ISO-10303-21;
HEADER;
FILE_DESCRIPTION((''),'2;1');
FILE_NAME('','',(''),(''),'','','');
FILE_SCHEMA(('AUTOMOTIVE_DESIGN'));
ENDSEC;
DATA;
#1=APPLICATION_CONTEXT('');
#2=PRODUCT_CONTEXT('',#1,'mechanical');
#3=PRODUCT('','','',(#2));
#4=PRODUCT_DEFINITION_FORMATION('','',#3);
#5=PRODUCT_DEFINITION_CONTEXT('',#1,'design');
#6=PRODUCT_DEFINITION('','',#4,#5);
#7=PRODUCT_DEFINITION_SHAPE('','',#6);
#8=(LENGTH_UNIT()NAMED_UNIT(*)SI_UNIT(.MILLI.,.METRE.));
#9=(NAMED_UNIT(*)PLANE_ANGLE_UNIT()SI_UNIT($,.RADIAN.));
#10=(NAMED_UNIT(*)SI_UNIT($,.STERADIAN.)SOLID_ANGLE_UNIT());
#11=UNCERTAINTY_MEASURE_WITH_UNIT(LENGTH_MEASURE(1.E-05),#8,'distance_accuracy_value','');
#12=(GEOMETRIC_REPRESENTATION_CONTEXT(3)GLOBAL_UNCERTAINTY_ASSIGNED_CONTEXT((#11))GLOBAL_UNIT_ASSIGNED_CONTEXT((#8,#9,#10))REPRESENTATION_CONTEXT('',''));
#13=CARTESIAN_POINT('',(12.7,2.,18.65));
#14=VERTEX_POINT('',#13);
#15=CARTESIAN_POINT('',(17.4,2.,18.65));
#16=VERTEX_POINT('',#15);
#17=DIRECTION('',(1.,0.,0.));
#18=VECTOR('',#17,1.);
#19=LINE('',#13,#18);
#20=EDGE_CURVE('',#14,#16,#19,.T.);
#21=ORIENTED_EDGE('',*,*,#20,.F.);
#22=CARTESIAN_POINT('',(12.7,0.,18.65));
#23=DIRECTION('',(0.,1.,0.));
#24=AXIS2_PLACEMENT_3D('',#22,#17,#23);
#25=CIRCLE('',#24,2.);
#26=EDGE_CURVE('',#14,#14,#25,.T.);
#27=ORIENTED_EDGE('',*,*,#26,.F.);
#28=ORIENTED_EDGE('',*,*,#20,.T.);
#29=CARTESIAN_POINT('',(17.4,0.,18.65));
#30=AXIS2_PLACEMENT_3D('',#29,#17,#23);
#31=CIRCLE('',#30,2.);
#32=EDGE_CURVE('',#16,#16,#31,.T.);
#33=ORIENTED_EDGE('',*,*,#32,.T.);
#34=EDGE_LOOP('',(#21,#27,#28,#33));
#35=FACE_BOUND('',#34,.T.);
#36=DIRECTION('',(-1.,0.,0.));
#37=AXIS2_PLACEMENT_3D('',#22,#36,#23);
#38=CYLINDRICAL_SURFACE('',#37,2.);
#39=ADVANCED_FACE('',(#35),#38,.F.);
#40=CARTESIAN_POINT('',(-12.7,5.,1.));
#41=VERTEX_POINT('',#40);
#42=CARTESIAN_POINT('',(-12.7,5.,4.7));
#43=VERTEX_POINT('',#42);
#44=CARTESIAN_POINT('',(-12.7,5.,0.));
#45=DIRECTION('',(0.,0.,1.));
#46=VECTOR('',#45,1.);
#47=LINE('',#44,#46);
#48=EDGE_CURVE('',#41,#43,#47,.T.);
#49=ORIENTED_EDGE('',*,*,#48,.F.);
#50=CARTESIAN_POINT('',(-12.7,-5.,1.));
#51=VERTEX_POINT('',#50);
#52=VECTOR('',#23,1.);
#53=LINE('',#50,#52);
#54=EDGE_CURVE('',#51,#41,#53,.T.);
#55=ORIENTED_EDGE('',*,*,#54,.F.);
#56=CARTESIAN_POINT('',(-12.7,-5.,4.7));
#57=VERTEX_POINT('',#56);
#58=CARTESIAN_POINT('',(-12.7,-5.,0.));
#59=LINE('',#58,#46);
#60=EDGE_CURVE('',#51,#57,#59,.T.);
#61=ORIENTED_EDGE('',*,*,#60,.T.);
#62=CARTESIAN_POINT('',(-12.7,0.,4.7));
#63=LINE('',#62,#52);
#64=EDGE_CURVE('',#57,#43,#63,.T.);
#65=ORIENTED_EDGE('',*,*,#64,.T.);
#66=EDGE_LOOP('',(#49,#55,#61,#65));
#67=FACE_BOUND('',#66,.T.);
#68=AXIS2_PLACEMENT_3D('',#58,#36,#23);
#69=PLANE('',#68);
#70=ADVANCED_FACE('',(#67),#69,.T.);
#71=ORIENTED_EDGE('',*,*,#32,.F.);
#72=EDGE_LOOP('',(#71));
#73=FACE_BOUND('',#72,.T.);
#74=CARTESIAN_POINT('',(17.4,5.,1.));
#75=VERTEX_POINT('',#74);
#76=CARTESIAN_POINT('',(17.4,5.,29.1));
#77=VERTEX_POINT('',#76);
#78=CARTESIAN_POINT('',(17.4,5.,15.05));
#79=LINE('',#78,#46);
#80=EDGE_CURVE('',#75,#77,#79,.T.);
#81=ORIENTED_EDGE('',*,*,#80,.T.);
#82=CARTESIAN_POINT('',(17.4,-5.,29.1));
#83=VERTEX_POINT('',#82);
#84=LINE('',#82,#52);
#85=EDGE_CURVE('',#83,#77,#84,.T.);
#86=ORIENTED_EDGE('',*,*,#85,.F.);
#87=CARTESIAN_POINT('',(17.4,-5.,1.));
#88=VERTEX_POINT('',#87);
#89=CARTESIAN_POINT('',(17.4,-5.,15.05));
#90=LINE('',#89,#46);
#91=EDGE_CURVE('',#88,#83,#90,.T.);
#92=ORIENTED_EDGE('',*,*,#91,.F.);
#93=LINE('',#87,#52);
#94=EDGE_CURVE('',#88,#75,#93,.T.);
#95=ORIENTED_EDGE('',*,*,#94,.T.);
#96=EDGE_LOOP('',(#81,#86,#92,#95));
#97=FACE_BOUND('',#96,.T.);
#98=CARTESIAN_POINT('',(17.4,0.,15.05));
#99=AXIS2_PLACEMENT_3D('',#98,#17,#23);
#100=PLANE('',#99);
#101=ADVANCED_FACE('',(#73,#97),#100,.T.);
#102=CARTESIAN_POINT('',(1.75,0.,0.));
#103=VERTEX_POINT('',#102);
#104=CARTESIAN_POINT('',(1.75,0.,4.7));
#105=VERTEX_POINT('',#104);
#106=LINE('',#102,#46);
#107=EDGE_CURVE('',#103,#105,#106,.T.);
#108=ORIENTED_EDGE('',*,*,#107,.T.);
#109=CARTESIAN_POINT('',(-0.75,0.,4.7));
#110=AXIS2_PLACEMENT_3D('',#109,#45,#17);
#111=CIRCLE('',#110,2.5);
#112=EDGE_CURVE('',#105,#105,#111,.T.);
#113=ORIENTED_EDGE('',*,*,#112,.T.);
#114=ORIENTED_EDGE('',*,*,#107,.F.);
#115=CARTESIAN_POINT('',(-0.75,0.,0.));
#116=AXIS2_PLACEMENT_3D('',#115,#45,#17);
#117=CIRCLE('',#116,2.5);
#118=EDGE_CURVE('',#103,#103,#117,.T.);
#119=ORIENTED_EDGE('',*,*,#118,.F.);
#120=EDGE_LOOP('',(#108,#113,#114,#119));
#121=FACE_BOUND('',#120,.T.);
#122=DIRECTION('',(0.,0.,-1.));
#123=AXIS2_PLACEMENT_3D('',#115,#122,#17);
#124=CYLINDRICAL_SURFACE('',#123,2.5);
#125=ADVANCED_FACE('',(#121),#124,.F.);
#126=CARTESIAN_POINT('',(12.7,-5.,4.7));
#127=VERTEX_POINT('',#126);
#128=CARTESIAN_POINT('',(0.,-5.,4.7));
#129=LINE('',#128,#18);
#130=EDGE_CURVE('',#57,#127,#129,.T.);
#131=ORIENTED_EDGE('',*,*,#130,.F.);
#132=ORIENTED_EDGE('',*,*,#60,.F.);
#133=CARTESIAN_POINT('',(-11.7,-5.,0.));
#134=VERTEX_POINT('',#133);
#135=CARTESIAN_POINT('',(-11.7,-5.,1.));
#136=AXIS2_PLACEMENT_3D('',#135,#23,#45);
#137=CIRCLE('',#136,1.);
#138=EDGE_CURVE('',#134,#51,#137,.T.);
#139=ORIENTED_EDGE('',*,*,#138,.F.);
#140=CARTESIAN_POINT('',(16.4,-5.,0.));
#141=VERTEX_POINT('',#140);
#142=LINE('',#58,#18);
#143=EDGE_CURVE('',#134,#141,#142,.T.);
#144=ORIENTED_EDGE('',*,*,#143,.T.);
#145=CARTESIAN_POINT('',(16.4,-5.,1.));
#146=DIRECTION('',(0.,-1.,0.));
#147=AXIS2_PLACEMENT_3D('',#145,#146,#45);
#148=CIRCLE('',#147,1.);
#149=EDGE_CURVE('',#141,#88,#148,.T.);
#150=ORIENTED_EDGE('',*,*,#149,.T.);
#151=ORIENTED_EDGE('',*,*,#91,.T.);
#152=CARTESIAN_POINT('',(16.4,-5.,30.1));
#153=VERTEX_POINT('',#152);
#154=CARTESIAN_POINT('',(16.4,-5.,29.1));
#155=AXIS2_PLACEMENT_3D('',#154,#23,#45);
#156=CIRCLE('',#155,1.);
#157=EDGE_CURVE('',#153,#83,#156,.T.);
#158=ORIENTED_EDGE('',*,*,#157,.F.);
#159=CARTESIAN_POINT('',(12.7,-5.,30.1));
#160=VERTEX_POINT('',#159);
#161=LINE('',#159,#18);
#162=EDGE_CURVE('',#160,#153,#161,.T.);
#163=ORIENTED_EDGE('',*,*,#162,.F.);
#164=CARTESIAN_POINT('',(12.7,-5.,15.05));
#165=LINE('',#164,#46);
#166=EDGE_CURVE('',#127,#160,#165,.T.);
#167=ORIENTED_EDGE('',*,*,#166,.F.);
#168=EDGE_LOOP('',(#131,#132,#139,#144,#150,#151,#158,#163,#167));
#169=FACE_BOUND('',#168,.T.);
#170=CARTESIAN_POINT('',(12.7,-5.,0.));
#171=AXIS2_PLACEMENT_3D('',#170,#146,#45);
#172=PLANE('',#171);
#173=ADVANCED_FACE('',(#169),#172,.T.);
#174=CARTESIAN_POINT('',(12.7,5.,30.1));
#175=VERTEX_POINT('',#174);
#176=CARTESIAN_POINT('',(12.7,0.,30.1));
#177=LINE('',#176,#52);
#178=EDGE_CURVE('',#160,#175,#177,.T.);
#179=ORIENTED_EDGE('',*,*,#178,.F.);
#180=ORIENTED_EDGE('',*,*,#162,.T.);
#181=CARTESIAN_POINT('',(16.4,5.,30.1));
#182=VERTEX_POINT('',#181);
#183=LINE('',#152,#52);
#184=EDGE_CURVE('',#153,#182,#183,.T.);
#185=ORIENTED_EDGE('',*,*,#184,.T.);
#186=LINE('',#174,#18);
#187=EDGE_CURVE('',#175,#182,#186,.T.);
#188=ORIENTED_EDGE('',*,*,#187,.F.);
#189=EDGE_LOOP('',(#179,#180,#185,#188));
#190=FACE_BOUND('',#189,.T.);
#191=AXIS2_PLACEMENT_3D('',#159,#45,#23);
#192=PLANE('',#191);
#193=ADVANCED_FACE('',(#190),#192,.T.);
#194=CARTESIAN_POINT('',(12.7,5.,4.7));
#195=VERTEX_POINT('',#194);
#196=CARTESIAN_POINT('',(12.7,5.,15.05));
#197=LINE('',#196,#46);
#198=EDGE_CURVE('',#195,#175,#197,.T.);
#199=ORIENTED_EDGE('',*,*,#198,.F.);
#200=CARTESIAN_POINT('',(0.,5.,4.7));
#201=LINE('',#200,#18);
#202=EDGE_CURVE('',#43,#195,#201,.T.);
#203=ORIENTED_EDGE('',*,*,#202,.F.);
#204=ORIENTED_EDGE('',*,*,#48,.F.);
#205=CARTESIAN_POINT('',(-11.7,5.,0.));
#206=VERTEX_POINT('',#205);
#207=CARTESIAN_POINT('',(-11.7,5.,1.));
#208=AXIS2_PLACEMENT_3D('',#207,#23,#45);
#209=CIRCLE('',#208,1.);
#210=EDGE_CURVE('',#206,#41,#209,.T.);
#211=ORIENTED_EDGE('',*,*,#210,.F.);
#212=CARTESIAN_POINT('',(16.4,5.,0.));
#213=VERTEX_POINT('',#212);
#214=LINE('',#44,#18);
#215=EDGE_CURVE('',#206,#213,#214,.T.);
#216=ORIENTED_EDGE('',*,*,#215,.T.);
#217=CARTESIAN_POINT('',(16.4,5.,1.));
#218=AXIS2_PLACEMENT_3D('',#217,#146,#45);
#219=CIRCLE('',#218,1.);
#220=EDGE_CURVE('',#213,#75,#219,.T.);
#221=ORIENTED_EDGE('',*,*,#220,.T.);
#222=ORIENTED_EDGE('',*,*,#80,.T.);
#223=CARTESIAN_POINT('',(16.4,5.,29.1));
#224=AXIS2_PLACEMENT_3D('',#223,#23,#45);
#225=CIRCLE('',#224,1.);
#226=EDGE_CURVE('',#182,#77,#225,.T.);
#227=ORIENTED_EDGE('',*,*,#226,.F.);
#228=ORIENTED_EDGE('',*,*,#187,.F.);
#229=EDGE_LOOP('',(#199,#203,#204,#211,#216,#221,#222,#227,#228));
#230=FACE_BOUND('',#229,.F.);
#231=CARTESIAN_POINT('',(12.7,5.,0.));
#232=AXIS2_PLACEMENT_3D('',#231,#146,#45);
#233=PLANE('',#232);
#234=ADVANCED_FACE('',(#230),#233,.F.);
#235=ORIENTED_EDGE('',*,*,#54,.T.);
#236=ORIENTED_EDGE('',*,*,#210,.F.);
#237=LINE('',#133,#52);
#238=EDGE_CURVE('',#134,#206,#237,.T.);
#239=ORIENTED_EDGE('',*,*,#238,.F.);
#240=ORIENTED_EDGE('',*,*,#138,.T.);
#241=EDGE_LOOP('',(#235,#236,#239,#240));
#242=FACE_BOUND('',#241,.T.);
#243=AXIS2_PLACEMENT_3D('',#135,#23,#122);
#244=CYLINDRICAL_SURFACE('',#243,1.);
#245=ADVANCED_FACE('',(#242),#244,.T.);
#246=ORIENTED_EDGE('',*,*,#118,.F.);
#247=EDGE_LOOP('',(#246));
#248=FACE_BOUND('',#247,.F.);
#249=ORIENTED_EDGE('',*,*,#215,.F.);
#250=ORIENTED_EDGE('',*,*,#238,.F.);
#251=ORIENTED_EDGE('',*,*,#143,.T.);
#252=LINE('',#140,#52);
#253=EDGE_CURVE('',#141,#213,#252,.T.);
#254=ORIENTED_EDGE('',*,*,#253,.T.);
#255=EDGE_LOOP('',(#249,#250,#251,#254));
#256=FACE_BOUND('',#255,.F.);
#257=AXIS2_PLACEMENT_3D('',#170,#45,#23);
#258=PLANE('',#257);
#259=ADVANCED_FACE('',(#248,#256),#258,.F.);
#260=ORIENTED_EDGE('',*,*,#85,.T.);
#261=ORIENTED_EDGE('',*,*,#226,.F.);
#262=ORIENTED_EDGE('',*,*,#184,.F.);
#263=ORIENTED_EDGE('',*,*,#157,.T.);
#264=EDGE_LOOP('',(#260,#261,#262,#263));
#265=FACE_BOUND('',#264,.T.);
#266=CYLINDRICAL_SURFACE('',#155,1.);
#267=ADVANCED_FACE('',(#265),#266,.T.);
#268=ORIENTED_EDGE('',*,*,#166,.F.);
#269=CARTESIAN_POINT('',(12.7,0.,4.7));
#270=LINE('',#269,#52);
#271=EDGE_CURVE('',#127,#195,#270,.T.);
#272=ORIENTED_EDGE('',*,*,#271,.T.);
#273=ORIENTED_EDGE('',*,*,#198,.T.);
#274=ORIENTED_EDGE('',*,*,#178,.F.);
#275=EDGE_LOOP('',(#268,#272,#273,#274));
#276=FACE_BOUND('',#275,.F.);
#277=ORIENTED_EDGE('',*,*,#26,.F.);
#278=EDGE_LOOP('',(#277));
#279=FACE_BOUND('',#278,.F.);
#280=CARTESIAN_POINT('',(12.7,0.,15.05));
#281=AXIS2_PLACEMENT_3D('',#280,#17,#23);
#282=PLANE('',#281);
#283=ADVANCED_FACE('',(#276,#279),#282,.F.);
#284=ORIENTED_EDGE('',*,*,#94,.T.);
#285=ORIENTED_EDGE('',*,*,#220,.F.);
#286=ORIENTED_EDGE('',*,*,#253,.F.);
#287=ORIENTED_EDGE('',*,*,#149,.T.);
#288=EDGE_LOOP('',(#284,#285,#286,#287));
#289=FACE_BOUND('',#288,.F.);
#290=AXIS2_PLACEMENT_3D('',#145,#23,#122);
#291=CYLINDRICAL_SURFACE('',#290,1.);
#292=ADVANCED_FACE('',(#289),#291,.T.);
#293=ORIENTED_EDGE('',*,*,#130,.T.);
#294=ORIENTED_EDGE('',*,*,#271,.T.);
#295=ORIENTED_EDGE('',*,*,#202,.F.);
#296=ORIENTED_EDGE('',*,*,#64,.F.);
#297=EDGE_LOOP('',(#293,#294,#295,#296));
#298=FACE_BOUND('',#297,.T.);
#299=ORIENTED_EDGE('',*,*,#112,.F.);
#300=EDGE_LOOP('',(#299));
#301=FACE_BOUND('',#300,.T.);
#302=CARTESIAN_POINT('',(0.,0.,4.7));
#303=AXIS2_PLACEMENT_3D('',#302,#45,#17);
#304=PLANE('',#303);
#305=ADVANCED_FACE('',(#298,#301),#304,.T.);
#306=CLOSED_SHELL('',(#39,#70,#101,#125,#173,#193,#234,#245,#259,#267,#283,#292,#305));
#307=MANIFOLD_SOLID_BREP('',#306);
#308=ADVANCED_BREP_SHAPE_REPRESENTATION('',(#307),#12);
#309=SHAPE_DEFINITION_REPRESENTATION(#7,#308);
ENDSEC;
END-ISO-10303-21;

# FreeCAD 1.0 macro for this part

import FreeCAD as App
import Part
import Sketcher

V = App.Vector


def edges_at(feature, points):
    """Names of the edges that pass closest to the given points."""
    edges = feature.Shape.Edges
    near = lambda p: min(range(len(edges)), key=lambda i: edges[i].distToShape(Part.Vertex(*p))[0])
    return sorted({f"Edge{near(p) + 1}" for p in points})


def add_polygon(sketch, points):
    """Adds a closed chain of lines whose ends are joined by coincident constraints."""
    first, n = sketch.GeometryCount, len(points)
    for a, b in zip(points, points[1:] + points[:1]):
        sketch.addGeometry(Part.LineSegment(App.Vector(*a, 0), App.Vector(*b, 0)), False)
    for i in range(n):
        sketch.addConstraint(Sketcher.Constraint("Coincident", first + i, 2, first + (i + 1) % n, 1))

doc = App.newDocument("Part")
body = doc.addObject("PartDesign::Body", "Body")

sketch1 = body.newObject("Sketcher::SketchObject", "Sketch")
sketch1.AttachmentSupport = (doc.getObject("XY_Plane"), [""])
sketch1.MapMode = "FlatFace"
add_polygon(sketch1, [(-12.7, 5), (-12.7, -5), (12.7, -5), (12.7, 5)])
sketch1.addGeometry(Part.Circle(V(-0.8, 0, 0), V(0, 0, 1), 2.5), False)
sketch1.addConstraint(Sketcher.Constraint("Vertical", 0))
sketch1.addConstraint(Sketcher.Constraint("Horizontal", 1))
sketch1.addConstraint(Sketcher.Constraint("Vertical", 2))
sketch1.addConstraint(Sketcher.Constraint("Horizontal", 3))
sketch1.addConstraint(Sketcher.Constraint("Symmetric", 0, 2, 2, 2, -1, 1))
sketch1.addConstraint(Sketcher.Constraint("PointOnObject", 4, 3, -1))
sketch1.addConstraint(Sketcher.Constraint("Diameter", 4, 5.0))
sketch1.addConstraint(Sketcher.Constraint("DistanceY", 0, 2, 0, 1, 10.0))
sketch1.addConstraint(Sketcher.Constraint("DistanceX", 1, 1, 1, 2, 25.4))
sketch1.addConstraint(Sketcher.Constraint("DistanceX", 4, 3, -1, 1, 0.75))
pad1 = body.newObject("PartDesign::Pad", "Pad")
pad1.Profile = sketch1
pad1.Length = 4.7

sketch2 = body.newObject("Sketcher::SketchObject", "Sketch001")
sketch2.AttachmentSupport = (doc.getObject("YZ_Plane"), [""])
sketch2.MapMode = "FlatFace"
sketch2.AttachmentOffset = App.Placement(V(0, 0, 12.7), App.Rotation())
add_polygon(sketch2, [(-5, 30.1), (-5, 0), (5, 0), (5, 30.1)])
sketch2.addGeometry(Part.Circle(V(0, 18.6, 0), V(0, 0, 1), 2), False)
sketch2.addConstraint(Sketcher.Constraint("Vertical", 0))
sketch2.addConstraint(Sketcher.Constraint("Horizontal", 1))
sketch2.addConstraint(Sketcher.Constraint("Vertical", 2))
sketch2.addConstraint(Sketcher.Constraint("Horizontal", 3))
sketch2.addConstraint(Sketcher.Constraint("Symmetric", 0, 2, 1, 2, -1, 1))
sketch2.addConstraint(Sketcher.Constraint("PointOnObject", 4, 3, -2))
sketch2.addConstraint(Sketcher.Constraint("Diameter", 4, 4.0))
sketch2.addConstraint(Sketcher.Constraint("DistanceX", 1, 1, 1, 2, 10.0))
sketch2.addConstraint(Sketcher.Constraint("DistanceY", 0, 2, 0, 1, 30.1))
sketch2.addConstraint(Sketcher.Constraint("DistanceY", -1, 1, 4, 3, 18.65))
pad2 = body.newObject("PartDesign::Pad", "Pad001")
pad2.Profile = sketch2
pad2.Length = 4.7
doc.recompute()

fillet = body.newObject("PartDesign::Fillet", "Fillet")
fillet.Base = (pad2, edges_at(pad2, [(17.4, 0, 30.1), (17.4, 0, 0), (-12.7, 0, 0)]))
fillet.Radius = 1

doc.recompute()
